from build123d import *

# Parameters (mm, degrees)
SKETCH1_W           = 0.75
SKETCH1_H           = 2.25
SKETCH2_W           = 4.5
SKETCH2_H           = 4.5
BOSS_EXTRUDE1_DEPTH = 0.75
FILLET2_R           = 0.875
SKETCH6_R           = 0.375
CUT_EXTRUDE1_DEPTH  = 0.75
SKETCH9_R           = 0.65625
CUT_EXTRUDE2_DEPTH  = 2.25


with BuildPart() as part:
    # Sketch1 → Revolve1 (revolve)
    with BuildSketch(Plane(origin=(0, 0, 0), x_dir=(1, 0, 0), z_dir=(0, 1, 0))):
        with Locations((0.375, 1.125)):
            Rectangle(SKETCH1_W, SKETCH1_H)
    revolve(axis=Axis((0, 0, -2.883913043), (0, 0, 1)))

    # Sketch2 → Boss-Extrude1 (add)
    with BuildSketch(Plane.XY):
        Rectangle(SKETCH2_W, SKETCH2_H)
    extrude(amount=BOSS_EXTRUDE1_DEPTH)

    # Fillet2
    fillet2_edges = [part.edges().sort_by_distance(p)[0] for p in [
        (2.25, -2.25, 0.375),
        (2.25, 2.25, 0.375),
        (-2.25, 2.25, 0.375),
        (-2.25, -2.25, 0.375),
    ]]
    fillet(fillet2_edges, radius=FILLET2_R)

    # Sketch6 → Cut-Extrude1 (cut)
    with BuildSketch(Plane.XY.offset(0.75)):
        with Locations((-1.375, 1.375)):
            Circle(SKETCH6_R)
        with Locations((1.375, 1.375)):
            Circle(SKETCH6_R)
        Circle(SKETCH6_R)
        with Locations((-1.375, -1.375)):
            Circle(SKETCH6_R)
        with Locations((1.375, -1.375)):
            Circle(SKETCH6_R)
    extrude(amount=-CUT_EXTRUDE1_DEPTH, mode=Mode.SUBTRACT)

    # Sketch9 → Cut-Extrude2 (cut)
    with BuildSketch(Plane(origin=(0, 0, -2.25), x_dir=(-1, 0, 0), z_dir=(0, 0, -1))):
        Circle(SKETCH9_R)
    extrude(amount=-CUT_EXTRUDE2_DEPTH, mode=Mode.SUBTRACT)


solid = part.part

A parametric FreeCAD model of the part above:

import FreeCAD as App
import Part
import Sketcher
from FreeCAD import Vector


def edges_at(feature, points):
    """Names of the edges that pass closest to the given points."""
    edges = feature.Shape.Edges
    near = lambda p: min(range(len(edges)), key=lambda i: edges[i].distToShape(Part.Vertex(*p))[0])
    return sorted({f"Edge{near(p) + 1}" for p in points})


def add_polygon(sketch, points):
    """Adds a closed chain of lines whose ends are joined by coincident constraints."""
    first, n = sketch.GeometryCount, len(points)
    for a, b in zip(points, points[1:] + points[:1]):
        sketch.addGeometry(Part.LineSegment(App.Vector(*a, 0), App.Vector(*b, 0)), False)
    for i in range(n):
        sketch.addConstraint(Sketcher.Constraint("Coincident", first + i, 2, first + (i + 1) % n, 1))

doc = App.newDocument("Part")
body = doc.addObject("PartDesign::Body", "Body")

# Sketch on XZ plane
sketch1 = doc.addObject("Sketcher::SketchObject", "Sketch")
body.addObject(sketch1)
sketch1.AttachmentSupport = (doc.XZ_Plane, [""])
sketch1.MapMode = "FlatFace"
add_polygon(sketch1, [(0, -2.2), (0, 0), (0.8, 0), (0.8, -2.2)])  # lines 0-3
sketch1.addConstraint([
    Sketcher.Constraint("Vertical", 0),
    Sketcher.Constraint("Horizontal", 1),
    Sketcher.Constraint("Vertical", 2),
    Sketcher.Constraint("Horizontal", 3),
    Sketcher.Constraint("Coincident", 0, 2, -1, 1),
    Sketcher.Constraint("DistanceX", 1, 1, 1, 2, 0.75),
    Sketcher.Constraint("DistanceY", 0, 1, 0, 2, 2.25),
])
revolution = doc.addObject("PartDesign::Revolution", "Revolution")
body.addObject(revolution)
revolution.Profile = sketch1
revolution.ReferenceAxis = (sketch1, ["V_Axis"])
revolution.Angle = 360

# Sketch on XY plane
sketch2 = doc.addObject("Sketcher::SketchObject", "Sketch001")
body.addObject(sketch2)
sketch2.AttachmentSupport = (doc.XY_Plane, [""])
sketch2.MapMode = "FlatFace"
add_polygon(sketch2, [(-2.2, 2.2), (-2.2, -2.2), (2.2, -2.2), (2.2, 2.2)])  # lines 0-3
sketch2.addConstraint([
    Sketcher.Constraint("Vertical", 0),
    Sketcher.Constraint("Horizontal", 1),
    Sketcher.Constraint("Vertical", 2),
    Sketcher.Constraint("Horizontal", 3),
    Sketcher.Constraint("Symmetric", 0, 2, 2, 2, -1, 1),
    Sketcher.Constraint("Equal", 3, 0),
    Sketcher.Constraint("DistanceX", 1, 1, 1, 2, 4.5),
])
pad1 = doc.addObject("PartDesign::Pad", "Pad")
body.addObject(pad1)
pad1.Profile = sketch2
pad1.Length = 0.75
doc.recompute()

fillet = doc.addObject("PartDesign::Fillet", "Fillet")
body.addObject(fillet)
fillet.Base = (pad1, edges_at(pad1, [
    (2.25, -2.25, 0.375),
    (2.25, 2.25, 0.375),
    (-2.25, 2.25, 0.375),
    (-2.25, -2.25, 0.375),
]))
fillet.Radius = 0.875

# Sketch on XY plane
sketch3 = doc.addObject("Sketcher::SketchObject", "Sketch002")
body.addObject(sketch3)
sketch3.AttachmentSupport = (doc.XY_Plane, [""])
sketch3.MapMode = "FlatFace"
sketch3.AttachmentOffset = App.Placement(Vector(0, 0, 0.75), App.Rotation())
sketch3.addGeometry([
    Part.Circle(Vector(-1.38, 1.38, 0), Vector(0, 0, 1), 0.38),  # 0
    Part.Circle(Vector(1.38, 1.38, 0), Vector(0, 0, 1), 0.38),  # 1
    Part.Circle(Vector(0, 0, 0), Vector(0, 0, 1), 0.38),  # 2
    Part.Circle(Vector(-1.38, -1.38, 0), Vector(0, 0, 1), 0.38),  # 3
    Part.Circle(Vector(1.38, -1.38, 0), Vector(0, 0, 1), 0.38),  # 4
], False)
sketch3.addConstraint([
    Sketcher.Constraint("Coincident", 2, 3, -1, 1),
    Sketcher.Constraint("Equal", 0, 1),
    Sketcher.Constraint("Equal", 1, 2),
    Sketcher.Constraint("Equal", 2, 3),
    Sketcher.Constraint("Equal", 3, 4),
    Sketcher.Constraint("Symmetric", 1, 3, 3, 3, -1, 1),
    Sketcher.Constraint("Symmetric", 0, 3, 4, 3, -1, 1),
    Sketcher.Constraint("Symmetric", 0, 3, 1, 3, -2),
    Sketcher.Constraint("Diameter", 0, 0.75),
    Sketcher.Constraint("DistanceX", 0, 3, 1, 3, 2.75),
    Sketcher.Constraint("DistanceY", 3, 3, 0, 3, 2.75),
])
pocket1 = doc.addObject("PartDesign::Pocket", "Pocket")
body.addObject(pocket1)
pocket1.Profile = sketch3
pocket1.Length = 0.75

# Sketch on XY plane
sketch4 = doc.addObject("Sketcher::SketchObject", "Sketch003")
body.addObject(sketch4)
sketch4.AttachmentSupport = (doc.XY_Plane, [""])
sketch4.MapMode = "FlatFace"
sketch4.AttachmentOffset = App.Placement(Vector(0, 0, -2.25), App.Rotation())
sketch4.addGeometry(Part.Circle(Vector(0, 0, 0), Vector(0, 0, 1), 0.7), False)
sketch4.addConstraint([
    Sketcher.Constraint("Coincident", 0, 3, -1, 1),
    Sketcher.Constraint("Diameter", 0, 1.3125),
])
pocket2 = doc.addObject("PartDesign::Pocket", "Pocket001")
body.addObject(pocket2)
pocket2.Profile = sketch4
pocket2.Length = 2.25
pocket2.Reversed = True

doc.recompute()
